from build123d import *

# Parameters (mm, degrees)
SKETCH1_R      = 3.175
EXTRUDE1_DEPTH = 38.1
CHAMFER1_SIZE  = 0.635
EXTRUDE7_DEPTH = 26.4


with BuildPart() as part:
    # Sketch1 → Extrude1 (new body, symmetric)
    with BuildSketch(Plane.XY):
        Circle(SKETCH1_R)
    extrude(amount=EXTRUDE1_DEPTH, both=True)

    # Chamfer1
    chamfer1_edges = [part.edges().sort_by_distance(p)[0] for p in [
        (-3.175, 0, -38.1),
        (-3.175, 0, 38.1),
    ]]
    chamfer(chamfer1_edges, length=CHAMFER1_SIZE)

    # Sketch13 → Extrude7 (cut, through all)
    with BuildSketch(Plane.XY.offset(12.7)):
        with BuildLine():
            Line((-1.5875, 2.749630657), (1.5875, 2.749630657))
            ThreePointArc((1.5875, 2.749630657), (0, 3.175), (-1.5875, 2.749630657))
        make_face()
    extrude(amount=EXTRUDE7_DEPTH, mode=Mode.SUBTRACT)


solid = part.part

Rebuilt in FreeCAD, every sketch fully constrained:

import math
import FreeCAD as App
import Part
import Sketcher
from FreeCAD import Vector
Q = App.Units.Quantity


def edges_at(feature, points):
    """Names of the edges that pass closest to the given points."""
    edges = feature.Shape.Edges
    near = lambda p: min(range(len(edges)), key=lambda i: edges[i].distToShape(Part.Vertex(*p))[0])
    return sorted({f"Edge{near(p) + 1}" for p in points})

doc = App.newDocument("Part")
body = doc.addObject("PartDesign::Body", "Body")

# Sketch on XY plane
sketch1 = body.newObject("Sketcher::SketchObject", "Sketch")
sketch1.AttachmentSupport = (doc.getObject("XY_Plane"), [""])
sketch1.MapMode = "FlatFace"
sketch1.addGeometry(Part.Circle(Vector(0, 0, 0), Vector(0, 0, 1), 3.175), False)
sketch1.addConstraint(Sketcher.Constraint("Coincident", 0, 3, -1, 1))
sketch1.addConstraint(Sketcher.Constraint("Diameter", 0, Q("0.25 in")))
pad1 = body.newObject("PartDesign::Pad", "Pad")
pad1.Profile = sketch1
pad1.Length = Q("3 in")
pad1.Midplane = True
doc.recompute()

chamfer = body.newObject("PartDesign::Chamfer", "Chamfer")
chamfer.Base = (pad1, edges_at(pad1, [(-3.175, 0, -38.1), (-3.175, 0, 38.1)]))
chamfer.Size = Q("0.025 in")

# Sketch on XY plane
sketch2 = body.newObject("Sketcher::SketchObject", "Sketch001")
sketch2.AttachmentSupport = (doc.getObject("XY_Plane"), [""])
sketch2.MapMode = "FlatFace"
sketch2.AttachmentOffset = App.Placement(Vector(0, 0, 0.5 * 25.4), App.Rotation())
sketch2.addGeometry(Part.LineSegment(Vector(-1.5875, 2.749631, 0), Vector(1.5875, 2.749631, 0)), False)
sketch2.addGeometry(Part.ArcOfCircle(Part.Circle(Vector(0, 0, 0), Vector(0, 0, 1), 3.175), math.radians(60), math.radians(120)), False)
sketch2.addConstraint(Sketcher.Constraint("Coincident", 0, 1, 1, 2))
sketch2.addConstraint(Sketcher.Constraint("Coincident", 1, 1, 0, 2))
sketch2.addConstraint(Sketcher.Constraint("Horizontal", 0))
sketch2.addConstraint(Sketcher.Constraint("Coincident", 1, 3, -1, 1))
sketch2.addConstraint(Sketcher.Constraint("Radius", 1, Q("0.125 in")))
sketch2.addConstraint(Sketcher.Constraint("DistanceX", 0, 1, 0, 2, Q("0.125 in")))
pocket1 = body.newObject("PartDesign::Pocket", "Pocket")
pocket1.Profile = sketch2
pocket1.Type = "ThroughAll"
pocket1.Reversed = True

doc.recompute()
